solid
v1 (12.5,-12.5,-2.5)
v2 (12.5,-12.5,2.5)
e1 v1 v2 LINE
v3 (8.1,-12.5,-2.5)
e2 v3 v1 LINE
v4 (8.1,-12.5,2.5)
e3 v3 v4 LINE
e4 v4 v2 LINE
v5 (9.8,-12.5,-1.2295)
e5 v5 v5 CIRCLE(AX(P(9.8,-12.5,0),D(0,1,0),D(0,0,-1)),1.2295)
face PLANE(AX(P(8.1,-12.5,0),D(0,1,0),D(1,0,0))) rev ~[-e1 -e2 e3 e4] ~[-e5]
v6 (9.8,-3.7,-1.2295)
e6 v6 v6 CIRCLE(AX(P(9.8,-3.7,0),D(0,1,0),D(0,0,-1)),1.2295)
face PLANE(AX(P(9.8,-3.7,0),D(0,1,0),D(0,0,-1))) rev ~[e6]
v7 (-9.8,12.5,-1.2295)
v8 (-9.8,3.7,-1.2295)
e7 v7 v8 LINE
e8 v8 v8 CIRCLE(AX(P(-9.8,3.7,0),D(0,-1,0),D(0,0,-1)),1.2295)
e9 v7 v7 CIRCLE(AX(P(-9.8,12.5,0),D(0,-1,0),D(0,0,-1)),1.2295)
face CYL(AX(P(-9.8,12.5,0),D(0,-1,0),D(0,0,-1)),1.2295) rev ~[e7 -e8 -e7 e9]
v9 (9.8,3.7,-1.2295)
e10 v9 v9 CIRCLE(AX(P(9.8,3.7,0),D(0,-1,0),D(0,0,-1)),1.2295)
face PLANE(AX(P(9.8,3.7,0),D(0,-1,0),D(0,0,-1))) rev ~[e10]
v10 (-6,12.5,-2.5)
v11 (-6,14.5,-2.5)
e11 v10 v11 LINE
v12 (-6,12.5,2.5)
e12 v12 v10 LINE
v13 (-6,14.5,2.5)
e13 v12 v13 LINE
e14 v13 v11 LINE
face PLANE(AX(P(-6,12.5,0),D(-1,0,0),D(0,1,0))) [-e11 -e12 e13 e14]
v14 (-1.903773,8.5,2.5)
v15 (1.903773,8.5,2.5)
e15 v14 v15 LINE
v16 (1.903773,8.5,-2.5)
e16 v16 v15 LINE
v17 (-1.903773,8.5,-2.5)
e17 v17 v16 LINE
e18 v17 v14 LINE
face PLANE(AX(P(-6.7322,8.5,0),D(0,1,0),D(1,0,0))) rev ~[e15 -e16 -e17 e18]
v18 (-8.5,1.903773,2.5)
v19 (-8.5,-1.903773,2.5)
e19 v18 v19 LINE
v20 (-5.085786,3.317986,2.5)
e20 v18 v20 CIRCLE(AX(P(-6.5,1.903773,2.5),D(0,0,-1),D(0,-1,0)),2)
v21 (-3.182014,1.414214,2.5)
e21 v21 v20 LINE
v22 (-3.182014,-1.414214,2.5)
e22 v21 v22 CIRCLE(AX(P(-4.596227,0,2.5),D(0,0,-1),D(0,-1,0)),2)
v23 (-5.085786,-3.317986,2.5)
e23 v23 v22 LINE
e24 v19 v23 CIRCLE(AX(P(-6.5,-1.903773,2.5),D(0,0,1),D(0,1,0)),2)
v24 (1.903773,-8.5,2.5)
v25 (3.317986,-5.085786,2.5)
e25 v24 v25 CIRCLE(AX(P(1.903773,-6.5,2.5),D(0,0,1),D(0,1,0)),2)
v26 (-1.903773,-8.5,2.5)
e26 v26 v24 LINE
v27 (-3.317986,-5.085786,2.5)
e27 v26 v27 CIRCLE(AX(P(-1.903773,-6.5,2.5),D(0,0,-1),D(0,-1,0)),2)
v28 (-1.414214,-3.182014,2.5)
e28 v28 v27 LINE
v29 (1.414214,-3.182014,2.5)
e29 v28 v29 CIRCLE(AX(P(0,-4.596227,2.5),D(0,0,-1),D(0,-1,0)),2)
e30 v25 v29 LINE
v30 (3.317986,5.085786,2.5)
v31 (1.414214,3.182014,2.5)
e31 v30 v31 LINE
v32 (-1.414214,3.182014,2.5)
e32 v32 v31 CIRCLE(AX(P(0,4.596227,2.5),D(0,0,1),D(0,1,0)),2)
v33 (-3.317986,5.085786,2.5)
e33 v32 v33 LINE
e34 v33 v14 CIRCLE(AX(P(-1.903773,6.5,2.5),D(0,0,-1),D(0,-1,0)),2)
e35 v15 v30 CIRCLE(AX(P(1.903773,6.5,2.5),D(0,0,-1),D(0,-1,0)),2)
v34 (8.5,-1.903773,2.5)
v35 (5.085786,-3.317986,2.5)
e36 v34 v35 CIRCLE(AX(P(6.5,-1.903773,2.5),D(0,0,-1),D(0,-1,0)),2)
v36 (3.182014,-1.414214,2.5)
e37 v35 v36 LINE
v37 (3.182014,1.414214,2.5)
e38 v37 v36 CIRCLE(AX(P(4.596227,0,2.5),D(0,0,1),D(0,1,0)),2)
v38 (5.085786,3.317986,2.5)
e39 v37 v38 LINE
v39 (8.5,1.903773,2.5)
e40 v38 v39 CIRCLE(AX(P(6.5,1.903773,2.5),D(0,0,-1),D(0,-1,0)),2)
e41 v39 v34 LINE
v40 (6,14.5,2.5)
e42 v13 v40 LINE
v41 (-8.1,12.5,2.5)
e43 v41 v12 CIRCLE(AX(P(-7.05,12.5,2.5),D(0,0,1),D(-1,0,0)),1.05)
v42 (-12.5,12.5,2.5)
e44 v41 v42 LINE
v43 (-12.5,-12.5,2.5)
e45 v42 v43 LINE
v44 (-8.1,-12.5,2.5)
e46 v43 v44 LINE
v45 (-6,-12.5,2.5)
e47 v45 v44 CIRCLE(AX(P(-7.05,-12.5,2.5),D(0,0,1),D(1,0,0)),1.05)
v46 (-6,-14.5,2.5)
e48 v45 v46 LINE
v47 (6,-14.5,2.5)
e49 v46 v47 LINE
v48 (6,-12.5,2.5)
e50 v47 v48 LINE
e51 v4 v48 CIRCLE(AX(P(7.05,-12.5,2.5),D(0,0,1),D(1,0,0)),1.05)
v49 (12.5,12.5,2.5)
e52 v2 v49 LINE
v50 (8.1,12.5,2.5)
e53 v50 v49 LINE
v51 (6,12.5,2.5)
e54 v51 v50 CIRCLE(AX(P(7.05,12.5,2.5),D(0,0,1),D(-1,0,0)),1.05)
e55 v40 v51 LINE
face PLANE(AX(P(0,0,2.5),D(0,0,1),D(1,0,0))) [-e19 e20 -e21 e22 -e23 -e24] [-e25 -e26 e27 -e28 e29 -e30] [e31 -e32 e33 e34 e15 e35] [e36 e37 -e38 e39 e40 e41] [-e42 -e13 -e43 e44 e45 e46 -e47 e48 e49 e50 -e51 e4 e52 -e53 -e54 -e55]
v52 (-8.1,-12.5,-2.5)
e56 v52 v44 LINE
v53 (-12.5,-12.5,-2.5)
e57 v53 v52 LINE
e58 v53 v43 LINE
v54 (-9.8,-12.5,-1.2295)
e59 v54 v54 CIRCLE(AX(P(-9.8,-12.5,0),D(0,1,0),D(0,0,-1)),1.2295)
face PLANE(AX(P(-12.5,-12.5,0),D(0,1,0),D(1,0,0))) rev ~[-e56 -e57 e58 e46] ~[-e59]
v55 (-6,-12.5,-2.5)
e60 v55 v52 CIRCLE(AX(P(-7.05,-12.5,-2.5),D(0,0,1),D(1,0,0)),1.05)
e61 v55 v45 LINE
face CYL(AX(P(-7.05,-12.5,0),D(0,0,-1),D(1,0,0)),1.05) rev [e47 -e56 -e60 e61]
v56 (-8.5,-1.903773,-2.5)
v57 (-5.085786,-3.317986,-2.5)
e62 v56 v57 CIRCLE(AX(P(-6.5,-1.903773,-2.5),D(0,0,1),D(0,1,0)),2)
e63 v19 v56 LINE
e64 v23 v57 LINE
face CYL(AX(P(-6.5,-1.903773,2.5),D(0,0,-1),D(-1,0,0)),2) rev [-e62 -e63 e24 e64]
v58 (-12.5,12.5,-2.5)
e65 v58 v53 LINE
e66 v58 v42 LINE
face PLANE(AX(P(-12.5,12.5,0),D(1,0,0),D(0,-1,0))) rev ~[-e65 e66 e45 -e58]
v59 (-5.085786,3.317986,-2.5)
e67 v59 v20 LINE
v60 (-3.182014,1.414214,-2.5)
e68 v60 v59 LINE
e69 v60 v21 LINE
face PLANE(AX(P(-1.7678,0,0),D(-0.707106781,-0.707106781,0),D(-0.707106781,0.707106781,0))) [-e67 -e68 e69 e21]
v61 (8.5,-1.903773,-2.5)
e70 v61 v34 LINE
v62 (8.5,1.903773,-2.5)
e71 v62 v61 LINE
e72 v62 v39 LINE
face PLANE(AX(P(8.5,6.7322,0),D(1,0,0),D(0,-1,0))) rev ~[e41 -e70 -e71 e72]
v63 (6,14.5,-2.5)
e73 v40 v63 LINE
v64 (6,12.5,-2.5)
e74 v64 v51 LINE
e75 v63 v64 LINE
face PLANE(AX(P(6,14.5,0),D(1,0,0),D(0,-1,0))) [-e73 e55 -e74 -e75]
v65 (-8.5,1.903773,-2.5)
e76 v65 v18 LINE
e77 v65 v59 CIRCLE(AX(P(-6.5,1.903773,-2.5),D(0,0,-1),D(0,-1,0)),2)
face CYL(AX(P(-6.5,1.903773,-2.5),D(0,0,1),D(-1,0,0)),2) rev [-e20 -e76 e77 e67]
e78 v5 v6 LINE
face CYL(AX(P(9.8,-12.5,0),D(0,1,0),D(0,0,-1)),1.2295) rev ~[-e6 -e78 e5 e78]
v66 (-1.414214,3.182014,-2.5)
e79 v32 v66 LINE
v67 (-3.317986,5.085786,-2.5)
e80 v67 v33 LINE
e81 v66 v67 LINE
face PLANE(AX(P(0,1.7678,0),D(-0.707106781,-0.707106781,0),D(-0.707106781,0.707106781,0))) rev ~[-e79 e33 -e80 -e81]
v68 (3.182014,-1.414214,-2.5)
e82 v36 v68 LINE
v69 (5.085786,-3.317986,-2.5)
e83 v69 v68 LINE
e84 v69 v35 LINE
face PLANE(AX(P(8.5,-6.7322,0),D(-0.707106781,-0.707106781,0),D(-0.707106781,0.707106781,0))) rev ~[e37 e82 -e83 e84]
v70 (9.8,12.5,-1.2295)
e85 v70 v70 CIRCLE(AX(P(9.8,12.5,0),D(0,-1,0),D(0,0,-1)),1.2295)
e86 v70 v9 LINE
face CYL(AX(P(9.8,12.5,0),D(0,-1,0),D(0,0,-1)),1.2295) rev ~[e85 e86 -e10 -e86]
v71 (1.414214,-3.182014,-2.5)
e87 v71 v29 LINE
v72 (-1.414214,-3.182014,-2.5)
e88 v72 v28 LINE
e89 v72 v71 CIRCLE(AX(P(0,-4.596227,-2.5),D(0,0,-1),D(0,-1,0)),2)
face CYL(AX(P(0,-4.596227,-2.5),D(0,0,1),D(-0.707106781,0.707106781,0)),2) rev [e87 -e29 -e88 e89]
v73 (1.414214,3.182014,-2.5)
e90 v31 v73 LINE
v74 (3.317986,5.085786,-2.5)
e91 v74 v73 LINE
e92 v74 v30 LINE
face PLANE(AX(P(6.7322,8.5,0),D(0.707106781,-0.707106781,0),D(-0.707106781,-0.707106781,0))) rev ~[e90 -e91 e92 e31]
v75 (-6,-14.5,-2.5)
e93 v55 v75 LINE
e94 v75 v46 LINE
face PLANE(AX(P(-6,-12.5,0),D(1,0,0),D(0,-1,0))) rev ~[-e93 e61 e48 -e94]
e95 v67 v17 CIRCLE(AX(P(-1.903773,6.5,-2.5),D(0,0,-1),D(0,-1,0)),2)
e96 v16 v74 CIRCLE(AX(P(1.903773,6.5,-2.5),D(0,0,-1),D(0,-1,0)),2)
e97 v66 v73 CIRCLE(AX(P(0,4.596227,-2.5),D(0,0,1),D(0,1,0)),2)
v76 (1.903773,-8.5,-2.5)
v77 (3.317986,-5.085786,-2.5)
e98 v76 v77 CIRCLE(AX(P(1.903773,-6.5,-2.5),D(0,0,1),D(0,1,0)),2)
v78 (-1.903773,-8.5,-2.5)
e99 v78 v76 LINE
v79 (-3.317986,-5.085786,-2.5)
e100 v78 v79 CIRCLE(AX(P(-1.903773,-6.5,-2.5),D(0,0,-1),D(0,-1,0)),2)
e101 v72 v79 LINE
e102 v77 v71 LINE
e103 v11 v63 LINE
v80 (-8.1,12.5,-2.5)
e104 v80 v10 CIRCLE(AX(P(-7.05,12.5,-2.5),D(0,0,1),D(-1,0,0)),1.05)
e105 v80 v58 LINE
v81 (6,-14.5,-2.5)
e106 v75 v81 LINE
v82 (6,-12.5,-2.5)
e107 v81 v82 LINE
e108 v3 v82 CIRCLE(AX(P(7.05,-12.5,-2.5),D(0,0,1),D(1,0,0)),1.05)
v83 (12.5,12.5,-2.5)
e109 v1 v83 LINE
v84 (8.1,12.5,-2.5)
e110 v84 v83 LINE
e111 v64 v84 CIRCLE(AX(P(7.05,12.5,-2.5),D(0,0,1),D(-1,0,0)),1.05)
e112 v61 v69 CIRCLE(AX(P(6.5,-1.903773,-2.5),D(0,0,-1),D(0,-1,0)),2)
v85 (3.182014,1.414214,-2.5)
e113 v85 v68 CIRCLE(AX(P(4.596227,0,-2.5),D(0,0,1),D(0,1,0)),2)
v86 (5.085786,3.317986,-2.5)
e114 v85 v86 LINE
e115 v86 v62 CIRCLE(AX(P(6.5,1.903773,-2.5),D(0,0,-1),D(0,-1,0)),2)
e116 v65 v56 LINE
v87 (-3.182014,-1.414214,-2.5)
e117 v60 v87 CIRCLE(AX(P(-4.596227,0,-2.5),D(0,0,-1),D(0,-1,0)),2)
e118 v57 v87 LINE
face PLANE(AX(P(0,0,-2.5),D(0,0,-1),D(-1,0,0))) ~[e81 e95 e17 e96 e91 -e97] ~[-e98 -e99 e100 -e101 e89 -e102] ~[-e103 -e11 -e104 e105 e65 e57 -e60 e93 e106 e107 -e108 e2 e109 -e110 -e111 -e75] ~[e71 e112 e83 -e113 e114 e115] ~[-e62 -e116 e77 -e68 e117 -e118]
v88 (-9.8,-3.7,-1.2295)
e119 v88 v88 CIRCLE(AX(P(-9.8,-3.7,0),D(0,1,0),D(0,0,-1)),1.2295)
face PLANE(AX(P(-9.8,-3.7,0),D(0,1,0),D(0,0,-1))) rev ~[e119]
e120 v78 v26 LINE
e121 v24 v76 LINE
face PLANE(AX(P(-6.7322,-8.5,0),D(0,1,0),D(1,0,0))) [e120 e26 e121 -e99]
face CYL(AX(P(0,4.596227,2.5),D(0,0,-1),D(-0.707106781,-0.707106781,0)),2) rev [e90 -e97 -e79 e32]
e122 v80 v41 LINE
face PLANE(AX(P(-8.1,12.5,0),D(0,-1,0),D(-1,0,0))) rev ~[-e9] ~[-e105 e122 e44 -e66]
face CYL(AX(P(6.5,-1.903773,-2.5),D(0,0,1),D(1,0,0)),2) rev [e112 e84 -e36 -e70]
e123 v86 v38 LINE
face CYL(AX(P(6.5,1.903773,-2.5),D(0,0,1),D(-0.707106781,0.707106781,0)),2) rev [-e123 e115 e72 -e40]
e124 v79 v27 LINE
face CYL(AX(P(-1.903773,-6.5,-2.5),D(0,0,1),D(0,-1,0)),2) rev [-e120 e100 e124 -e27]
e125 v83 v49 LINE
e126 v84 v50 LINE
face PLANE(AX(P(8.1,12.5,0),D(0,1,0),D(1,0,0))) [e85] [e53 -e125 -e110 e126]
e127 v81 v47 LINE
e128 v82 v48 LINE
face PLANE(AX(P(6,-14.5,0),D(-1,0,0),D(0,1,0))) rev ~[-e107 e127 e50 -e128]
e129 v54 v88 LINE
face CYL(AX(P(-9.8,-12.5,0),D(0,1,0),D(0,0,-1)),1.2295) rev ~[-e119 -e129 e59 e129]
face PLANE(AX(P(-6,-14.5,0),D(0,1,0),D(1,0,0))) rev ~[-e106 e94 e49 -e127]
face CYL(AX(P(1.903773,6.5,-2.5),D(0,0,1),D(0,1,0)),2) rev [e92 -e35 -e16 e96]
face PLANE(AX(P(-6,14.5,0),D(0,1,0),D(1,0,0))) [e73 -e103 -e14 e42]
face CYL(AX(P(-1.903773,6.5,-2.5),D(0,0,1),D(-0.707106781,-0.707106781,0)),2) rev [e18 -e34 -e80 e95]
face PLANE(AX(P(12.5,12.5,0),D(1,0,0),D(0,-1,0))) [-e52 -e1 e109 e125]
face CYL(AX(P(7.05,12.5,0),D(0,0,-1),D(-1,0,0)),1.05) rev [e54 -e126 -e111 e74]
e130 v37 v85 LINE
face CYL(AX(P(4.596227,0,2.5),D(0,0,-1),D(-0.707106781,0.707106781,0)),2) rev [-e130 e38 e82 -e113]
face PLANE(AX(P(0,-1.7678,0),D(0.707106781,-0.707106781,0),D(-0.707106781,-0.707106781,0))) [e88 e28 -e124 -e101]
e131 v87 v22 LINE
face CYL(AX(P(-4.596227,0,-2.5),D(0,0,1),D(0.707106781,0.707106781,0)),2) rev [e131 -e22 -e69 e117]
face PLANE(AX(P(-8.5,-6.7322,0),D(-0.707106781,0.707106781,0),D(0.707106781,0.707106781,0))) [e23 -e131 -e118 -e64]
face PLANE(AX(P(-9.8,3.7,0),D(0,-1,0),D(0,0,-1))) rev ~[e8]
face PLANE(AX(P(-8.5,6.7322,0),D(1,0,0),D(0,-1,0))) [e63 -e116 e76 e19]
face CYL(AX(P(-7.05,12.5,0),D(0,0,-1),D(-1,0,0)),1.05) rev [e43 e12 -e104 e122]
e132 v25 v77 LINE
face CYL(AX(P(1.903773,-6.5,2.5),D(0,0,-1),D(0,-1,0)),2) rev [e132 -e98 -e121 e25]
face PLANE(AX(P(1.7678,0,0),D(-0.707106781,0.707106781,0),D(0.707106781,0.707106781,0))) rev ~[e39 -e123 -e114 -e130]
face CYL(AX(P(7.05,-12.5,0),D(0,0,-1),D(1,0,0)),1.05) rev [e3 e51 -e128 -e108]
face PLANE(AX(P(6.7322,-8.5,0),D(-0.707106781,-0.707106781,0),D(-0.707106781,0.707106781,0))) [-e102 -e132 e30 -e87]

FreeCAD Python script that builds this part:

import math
import FreeCAD as App
import Part
import Sketcher
Q = App.Units.Quantity


def edges_at(feature, points):
    """Names of the edges that pass closest to the given points."""
    edges = feature.Shape.Edges
    near = lambda p: min(range(len(edges)), key=lambda i: edges[i].distToShape(Part.Vertex(*p))[0])
    return sorted({f"Edge{near(p) + 1}" for p in points})

doc = App.newDocument("Part")
body = doc.addObject("PartDesign::Body", "Body")

# Sketch on XY plane
sketch1 = doc.addObject("Sketcher::SketchObject", "Sketch")
body.addObject(sketch1)
sketch1.AttachmentSupport = (doc.XY_Plane, [""])
sketch1.MapMode = "FlatFace"
sketch1.addGeometry([
    Part.ArcOfCircle(Part.Circle(App.Vector(-7.05, 12.5, 0), App.Vector(0, 0, 1), 1.05), math.radians(180), math.radians(360)),  # 0
    Part.LineSegment(App.Vector(-8.1, 12.5, 0), App.Vector(-12.5, 12.5, 0)),  # 1
    Part.LineSegment(App.Vector(-12.5, 12.5, 0), App.Vector(-12.5, -12.5, 0)),  # 2
    Part.LineSegment(App.Vector(-12.5, -12.5, 0), App.Vector(-8.1, -12.5, 0)),  # 3
    Part.ArcOfCircle(Part.Circle(App.Vector(-7.05, -12.5, 0), App.Vector(0, 0, 1), 1.05), math.radians(0), math.radians(180)),  # 4
    Part.LineSegment(App.Vector(-6, -12.5, 0), App.Vector(-6, -14.5, 0)),  # 5
    Part.LineSegment(App.Vector(-6, -14.5, 0), App.Vector(6, -14.5, 0)),  # 6
    Part.LineSegment(App.Vector(6, -14.5, 0), App.Vector(6, -12.5, 0)),  # 7
    Part.ArcOfCircle(Part.Circle(App.Vector(7.05, -12.5, 0), App.Vector(0, 0, 1), 1.05), math.radians(0), math.radians(180)),  # 8
    Part.LineSegment(App.Vector(8.1, -12.5, 0), App.Vector(12.5, -12.5, 0)),  # 9
    Part.LineSegment(App.Vector(12.5, -12.5, 0), App.Vector(12.5, 12.5, 0)),  # 10
    Part.LineSegment(App.Vector(12.5, 12.5, 0), App.Vector(8.1, 12.5, 0)),  # 11
    Part.ArcOfCircle(Part.Circle(App.Vector(7.05, 12.5, 0), App.Vector(0, 0, 1), 1.05), math.radians(180), math.radians(360)),  # 12
    Part.LineSegment(App.Vector(6, 12.5, 0), App.Vector(6, 14.5, 0)),  # 13
    Part.LineSegment(App.Vector(6, 14.5, 0), App.Vector(-6, 14.5, 0)),  # 14
    Part.LineSegment(App.Vector(-6, 14.5, 0), App.Vector(-6, 12.5, 0)),  # 15
    Part.LineSegment(App.Vector(6.7322, -8.5, 0), App.Vector(-6.7322, -8.5, 0)),  # 16
    Part.LineSegment(App.Vector(-6.7322, -8.5, 0), App.Vector(0, -1.7678, 0)),  # 17
    Part.LineSegment(App.Vector(0, -1.7678, 0), App.Vector(6.7322, -8.5, 0)),  # 18
    Part.LineSegment(App.Vector(-8.5, -6.7322, 0), App.Vector(-8.5, 6.7322, 0)),  # 19
    Part.LineSegment(App.Vector(-8.5, 6.7322, 0), App.Vector(-1.7678, 0, 0)),  # 20
    Part.LineSegment(App.Vector(-1.7678, 0, 0), App.Vector(-8.5, -6.7322, 0)),  # 21
    Part.LineSegment(App.Vector(1.7678, 0, 0), App.Vector(8.5, 6.7322, 0)),  # 22
    Part.LineSegment(App.Vector(8.5, 6.7322, 0), App.Vector(8.5, -6.7322, 0)),  # 23
    Part.LineSegment(App.Vector(8.5, -6.7322, 0), App.Vector(1.7678, 0, 0)),  # 24
    Part.LineSegment(App.Vector(0, 1.7678, 0), App.Vector(-6.7322, 8.5, 0)),  # 25
    Part.LineSegment(App.Vector(-6.7322, 8.5, 0), App.Vector(6.7322, 8.5, 0)),  # 26
    Part.LineSegment(App.Vector(6.7322, 8.5, 0), App.Vector(0, 1.7678, 0)),  # 27
], False)
sketch1.addConstraint([
    Sketcher.Constraint("Coincident", 0, 1, 1, 1),
    Sketcher.Constraint("Coincident", 1, 2, 2, 1),
    Sketcher.Constraint("Coincident", 2, 2, 3, 1),
    Sketcher.Constraint("Coincident", 3, 2, 4, 2),
    Sketcher.Constraint("Tangent", 4, 1, 5, 1),
    Sketcher.Constraint("Coincident", 5, 2, 6, 1),
    Sketcher.Constraint("Coincident", 6, 2, 7, 1),
    Sketcher.Constraint("Tangent", 7, 2, 8, 2),
    Sketcher.Constraint("Coincident", 8, 1, 9, 1),
    Sketcher.Constraint("Coincident", 9, 2, 10, 1),
    Sketcher.Constraint("Coincident", 10, 2, 11, 1),
    Sketcher.Constraint("Coincident", 11, 2, 12, 2),
    Sketcher.Constraint("Tangent", 12, 1, 13, 1),
    Sketcher.Constraint("Coincident", 13, 2, 14, 1),
    Sketcher.Constraint("Coincident", 14, 2, 15, 1),
    Sketcher.Constraint("Tangent", 15, 2, 0, 2),
    Sketcher.Constraint("Coincident", 16, 2, 17, 1),
    Sketcher.Constraint("Coincident", 17, 2, 18, 1),
    Sketcher.Constraint("Coincident", 18, 2, 16, 1),
    Sketcher.Constraint("Coincident", 19, 2, 20, 1),
    Sketcher.Constraint("Coincident", 20, 2, 21, 1),
    Sketcher.Constraint("Coincident", 21, 2, 19, 1),
    Sketcher.Constraint("Coincident", 22, 2, 23, 1),
    Sketcher.Constraint("Coincident", 23, 2, 24, 1),
    Sketcher.Constraint("Coincident", 24, 2, 22, 1),
    Sketcher.Constraint("Coincident", 25, 2, 26, 1),
    Sketcher.Constraint("Coincident", 26, 2, 27, 1),
    Sketcher.Constraint("Coincident", 27, 2, 25, 1),
    Sketcher.Constraint("Horizontal", 1),
    Sketcher.Constraint("Vertical", 2),
    Sketcher.Constraint("Horizontal", 3),
    Sketcher.Constraint("Vertical", 5),
    Sketcher.Constraint("Horizontal", 6),
    Sketcher.Constraint("Vertical", 7),
    Sketcher.Constraint("Horizontal", 9),
    Sketcher.Constraint("Vertical", 10),
    Sketcher.Constraint("Horizontal", 11),
    Sketcher.Constraint("Vertical", 13),
    Sketcher.Constraint("Horizontal", 14),
    Sketcher.Constraint("Vertical", 15),
    Sketcher.Constraint("Horizontal", 16),
    Sketcher.Constraint("Vertical", 19),
    Sketcher.Constraint("Vertical", 23),
    Sketcher.Constraint("Horizontal", 26),
    Sketcher.Constraint("Equal", 0, 4),
    Sketcher.Constraint("Equal", 4, 8),
    Sketcher.Constraint("Equal", 8, 12),
    Sketcher.Constraint("Symmetric", 0, 3, 8, 3, -1, 1),
    Sketcher.Constraint("Symmetric", 4, 3, 12, 3, -1, 1),
    Sketcher.Constraint("Symmetric", 1, 2, 9, 2, -1, 1),
    Sketcher.Constraint("Symmetric", 21, 2, 22, 2, -1, 1),
    Sketcher.Constraint("Symmetric", 20, 2, 24, 2, -1, 1),
    Sketcher.Constraint("Symmetric", 18, 2, 25, 2, -1, 1),
    Sketcher.Constraint("Symmetric", 17, 2, 27, 2, -1, 1),
    Sketcher.Constraint("Symmetric", 4, 3, 8, 3, -2),
    Sketcher.Constraint("PointOnObject", 17, 2, -2),
    Sketcher.Constraint("PointOnObject", 20, 2, -1),
    Sketcher.Constraint("Perpendicular", 17, 18),
    Sketcher.Constraint("Parallel", 18, 20),
    Sketcher.Constraint("Perpendicular", 20, 21),
    Sketcher.Constraint("Perpendicular", 22, 24),
    Sketcher.Constraint("Perpendicular", 25, 27),
    Sketcher.Constraint("Horizontal", 12, 3, 0, 1),
    Sketcher.Constraint("Horizontal", 8, 3, 2, 2),
    Sketcher.Constraint("Horizontal", 1, 2, 10, 2),
    Sketcher.Constraint("Horizontal", 19, 2, 22, 2),
    Sketcher.Constraint("Equal", 7, 13),
    Sketcher.Constraint("Equal", 26, 19),
    Sketcher.Constraint("DistanceY", 2, 2, 2, 1, Q("25 mm")),
    Sketcher.Constraint("DistanceY", 5, 2, 5, 1, Q("2 mm")),
    Sketcher.Constraint("Radius", 0, Q("1.05 mm")),
    Sketcher.Constraint("DistanceX", 1, 2, 10, 2, Q("25 mm")),
    Sketcher.Constraint("DistanceY", 4, 3, 16, 2, Q("4 mm")),
    Sketcher.Constraint("DistanceX", 1, 2, 19, 2, Q("4 mm")),
    Sketcher.Constraint("DistanceX", 2, 2, 4, 1, Q("6.5 mm")),
    Sketcher.Constraint("DistanceX", 16, 2, 16, 1, Q("13.4644 mm")),
])
pad1 = doc.addObject("PartDesign::Pad", "Pad")
body.addObject(pad1)
pad1.Profile = sketch1
pad1.Length = 2.5
doc.recompute()

mirrored = doc.addObject("PartDesign::Mirrored", "Mirrored")
body.addObject(mirrored)
mirrored.Originals = [pad1]
mirrored.MirrorPlane = (doc.XY_Plane, [""])
body.Tip = mirrored

# Sketch on XZ plane
sketch2 = doc.addObject("Sketcher::SketchObject", "Sketch001")
body.addObject(sketch2)
sketch2.AttachmentSupport = (doc.XZ_Plane, [""])
sketch2.MapMode = "FlatFace"
sketch2.AttachmentOffset = App.Placement(App.Vector(0, 0, 12.5), App.Rotation())
sketch2.addGeometry([
    Part.Circle(App.Vector(-9.8, 0, 0), App.Vector(0, 0, 1), 1.2295),
    Part.Circle(App.Vector(9.8, 0, 0), App.Vector(0, 0, 1), 1.2295),
], False)
sketch2.addConstraint([
    Sketcher.Constraint("Equal", 0, 1),
    Sketcher.Constraint("Symmetric", 0, 3, 1, 3, -1, 1),
    Sketcher.Constraint("PointOnObject", 0, 3, -1),
    Sketcher.Constraint("Diameter", 0, Q("2.459 mm")),
    Sketcher.Constraint("DistanceX", 0, 3, -1, 1, Q("9.8 mm")),
])
doc.recompute()
hole = doc.addObject("PartDesign::Hole", "Hole")
body.addObject(hole)
hole.Profile = sketch2
hole.ThreadType = "None"
hole.Diameter = 2.459
hole.DepthType = "Dimension"
hole.Depth = 8.8
hole.DrillPoint = "Flat"
doc.recompute()

polarpattern = doc.addObject("PartDesign::PolarPattern", "PolarPattern")
body.addObject(polarpattern)
polarpattern.Originals = [hole]
polarpattern.Axis = (doc.Z_Axis, [""])
polarpattern.Angle = 360
polarpattern.Occurrences = 2
body.Tip = polarpattern
doc.recompute()

fillet = doc.addObject("PartDesign::Fillet", "Fillet")
body.addObject(fillet)
fillet.Base = (polarpattern, edges_at(polarpattern, [
    (8.5, 6.732, 0),
    (8.5, -6.732, 0),
    (6.732, -8.5, 0),
    (0, 1.768, 0),
    (-1.768, 0, 0),
    (-6.732, -8.5, 0),
    (-8.5, -6.732, 0),
    (6.732, 8.5, 0),
    (-8.5, 6.732, 0),
    (-6.732, 8.5, 0),
    (0, -1.768, 0),
    (1.768, 0, 0),
]))
fillet.Radius = 2

doc.recompute()
